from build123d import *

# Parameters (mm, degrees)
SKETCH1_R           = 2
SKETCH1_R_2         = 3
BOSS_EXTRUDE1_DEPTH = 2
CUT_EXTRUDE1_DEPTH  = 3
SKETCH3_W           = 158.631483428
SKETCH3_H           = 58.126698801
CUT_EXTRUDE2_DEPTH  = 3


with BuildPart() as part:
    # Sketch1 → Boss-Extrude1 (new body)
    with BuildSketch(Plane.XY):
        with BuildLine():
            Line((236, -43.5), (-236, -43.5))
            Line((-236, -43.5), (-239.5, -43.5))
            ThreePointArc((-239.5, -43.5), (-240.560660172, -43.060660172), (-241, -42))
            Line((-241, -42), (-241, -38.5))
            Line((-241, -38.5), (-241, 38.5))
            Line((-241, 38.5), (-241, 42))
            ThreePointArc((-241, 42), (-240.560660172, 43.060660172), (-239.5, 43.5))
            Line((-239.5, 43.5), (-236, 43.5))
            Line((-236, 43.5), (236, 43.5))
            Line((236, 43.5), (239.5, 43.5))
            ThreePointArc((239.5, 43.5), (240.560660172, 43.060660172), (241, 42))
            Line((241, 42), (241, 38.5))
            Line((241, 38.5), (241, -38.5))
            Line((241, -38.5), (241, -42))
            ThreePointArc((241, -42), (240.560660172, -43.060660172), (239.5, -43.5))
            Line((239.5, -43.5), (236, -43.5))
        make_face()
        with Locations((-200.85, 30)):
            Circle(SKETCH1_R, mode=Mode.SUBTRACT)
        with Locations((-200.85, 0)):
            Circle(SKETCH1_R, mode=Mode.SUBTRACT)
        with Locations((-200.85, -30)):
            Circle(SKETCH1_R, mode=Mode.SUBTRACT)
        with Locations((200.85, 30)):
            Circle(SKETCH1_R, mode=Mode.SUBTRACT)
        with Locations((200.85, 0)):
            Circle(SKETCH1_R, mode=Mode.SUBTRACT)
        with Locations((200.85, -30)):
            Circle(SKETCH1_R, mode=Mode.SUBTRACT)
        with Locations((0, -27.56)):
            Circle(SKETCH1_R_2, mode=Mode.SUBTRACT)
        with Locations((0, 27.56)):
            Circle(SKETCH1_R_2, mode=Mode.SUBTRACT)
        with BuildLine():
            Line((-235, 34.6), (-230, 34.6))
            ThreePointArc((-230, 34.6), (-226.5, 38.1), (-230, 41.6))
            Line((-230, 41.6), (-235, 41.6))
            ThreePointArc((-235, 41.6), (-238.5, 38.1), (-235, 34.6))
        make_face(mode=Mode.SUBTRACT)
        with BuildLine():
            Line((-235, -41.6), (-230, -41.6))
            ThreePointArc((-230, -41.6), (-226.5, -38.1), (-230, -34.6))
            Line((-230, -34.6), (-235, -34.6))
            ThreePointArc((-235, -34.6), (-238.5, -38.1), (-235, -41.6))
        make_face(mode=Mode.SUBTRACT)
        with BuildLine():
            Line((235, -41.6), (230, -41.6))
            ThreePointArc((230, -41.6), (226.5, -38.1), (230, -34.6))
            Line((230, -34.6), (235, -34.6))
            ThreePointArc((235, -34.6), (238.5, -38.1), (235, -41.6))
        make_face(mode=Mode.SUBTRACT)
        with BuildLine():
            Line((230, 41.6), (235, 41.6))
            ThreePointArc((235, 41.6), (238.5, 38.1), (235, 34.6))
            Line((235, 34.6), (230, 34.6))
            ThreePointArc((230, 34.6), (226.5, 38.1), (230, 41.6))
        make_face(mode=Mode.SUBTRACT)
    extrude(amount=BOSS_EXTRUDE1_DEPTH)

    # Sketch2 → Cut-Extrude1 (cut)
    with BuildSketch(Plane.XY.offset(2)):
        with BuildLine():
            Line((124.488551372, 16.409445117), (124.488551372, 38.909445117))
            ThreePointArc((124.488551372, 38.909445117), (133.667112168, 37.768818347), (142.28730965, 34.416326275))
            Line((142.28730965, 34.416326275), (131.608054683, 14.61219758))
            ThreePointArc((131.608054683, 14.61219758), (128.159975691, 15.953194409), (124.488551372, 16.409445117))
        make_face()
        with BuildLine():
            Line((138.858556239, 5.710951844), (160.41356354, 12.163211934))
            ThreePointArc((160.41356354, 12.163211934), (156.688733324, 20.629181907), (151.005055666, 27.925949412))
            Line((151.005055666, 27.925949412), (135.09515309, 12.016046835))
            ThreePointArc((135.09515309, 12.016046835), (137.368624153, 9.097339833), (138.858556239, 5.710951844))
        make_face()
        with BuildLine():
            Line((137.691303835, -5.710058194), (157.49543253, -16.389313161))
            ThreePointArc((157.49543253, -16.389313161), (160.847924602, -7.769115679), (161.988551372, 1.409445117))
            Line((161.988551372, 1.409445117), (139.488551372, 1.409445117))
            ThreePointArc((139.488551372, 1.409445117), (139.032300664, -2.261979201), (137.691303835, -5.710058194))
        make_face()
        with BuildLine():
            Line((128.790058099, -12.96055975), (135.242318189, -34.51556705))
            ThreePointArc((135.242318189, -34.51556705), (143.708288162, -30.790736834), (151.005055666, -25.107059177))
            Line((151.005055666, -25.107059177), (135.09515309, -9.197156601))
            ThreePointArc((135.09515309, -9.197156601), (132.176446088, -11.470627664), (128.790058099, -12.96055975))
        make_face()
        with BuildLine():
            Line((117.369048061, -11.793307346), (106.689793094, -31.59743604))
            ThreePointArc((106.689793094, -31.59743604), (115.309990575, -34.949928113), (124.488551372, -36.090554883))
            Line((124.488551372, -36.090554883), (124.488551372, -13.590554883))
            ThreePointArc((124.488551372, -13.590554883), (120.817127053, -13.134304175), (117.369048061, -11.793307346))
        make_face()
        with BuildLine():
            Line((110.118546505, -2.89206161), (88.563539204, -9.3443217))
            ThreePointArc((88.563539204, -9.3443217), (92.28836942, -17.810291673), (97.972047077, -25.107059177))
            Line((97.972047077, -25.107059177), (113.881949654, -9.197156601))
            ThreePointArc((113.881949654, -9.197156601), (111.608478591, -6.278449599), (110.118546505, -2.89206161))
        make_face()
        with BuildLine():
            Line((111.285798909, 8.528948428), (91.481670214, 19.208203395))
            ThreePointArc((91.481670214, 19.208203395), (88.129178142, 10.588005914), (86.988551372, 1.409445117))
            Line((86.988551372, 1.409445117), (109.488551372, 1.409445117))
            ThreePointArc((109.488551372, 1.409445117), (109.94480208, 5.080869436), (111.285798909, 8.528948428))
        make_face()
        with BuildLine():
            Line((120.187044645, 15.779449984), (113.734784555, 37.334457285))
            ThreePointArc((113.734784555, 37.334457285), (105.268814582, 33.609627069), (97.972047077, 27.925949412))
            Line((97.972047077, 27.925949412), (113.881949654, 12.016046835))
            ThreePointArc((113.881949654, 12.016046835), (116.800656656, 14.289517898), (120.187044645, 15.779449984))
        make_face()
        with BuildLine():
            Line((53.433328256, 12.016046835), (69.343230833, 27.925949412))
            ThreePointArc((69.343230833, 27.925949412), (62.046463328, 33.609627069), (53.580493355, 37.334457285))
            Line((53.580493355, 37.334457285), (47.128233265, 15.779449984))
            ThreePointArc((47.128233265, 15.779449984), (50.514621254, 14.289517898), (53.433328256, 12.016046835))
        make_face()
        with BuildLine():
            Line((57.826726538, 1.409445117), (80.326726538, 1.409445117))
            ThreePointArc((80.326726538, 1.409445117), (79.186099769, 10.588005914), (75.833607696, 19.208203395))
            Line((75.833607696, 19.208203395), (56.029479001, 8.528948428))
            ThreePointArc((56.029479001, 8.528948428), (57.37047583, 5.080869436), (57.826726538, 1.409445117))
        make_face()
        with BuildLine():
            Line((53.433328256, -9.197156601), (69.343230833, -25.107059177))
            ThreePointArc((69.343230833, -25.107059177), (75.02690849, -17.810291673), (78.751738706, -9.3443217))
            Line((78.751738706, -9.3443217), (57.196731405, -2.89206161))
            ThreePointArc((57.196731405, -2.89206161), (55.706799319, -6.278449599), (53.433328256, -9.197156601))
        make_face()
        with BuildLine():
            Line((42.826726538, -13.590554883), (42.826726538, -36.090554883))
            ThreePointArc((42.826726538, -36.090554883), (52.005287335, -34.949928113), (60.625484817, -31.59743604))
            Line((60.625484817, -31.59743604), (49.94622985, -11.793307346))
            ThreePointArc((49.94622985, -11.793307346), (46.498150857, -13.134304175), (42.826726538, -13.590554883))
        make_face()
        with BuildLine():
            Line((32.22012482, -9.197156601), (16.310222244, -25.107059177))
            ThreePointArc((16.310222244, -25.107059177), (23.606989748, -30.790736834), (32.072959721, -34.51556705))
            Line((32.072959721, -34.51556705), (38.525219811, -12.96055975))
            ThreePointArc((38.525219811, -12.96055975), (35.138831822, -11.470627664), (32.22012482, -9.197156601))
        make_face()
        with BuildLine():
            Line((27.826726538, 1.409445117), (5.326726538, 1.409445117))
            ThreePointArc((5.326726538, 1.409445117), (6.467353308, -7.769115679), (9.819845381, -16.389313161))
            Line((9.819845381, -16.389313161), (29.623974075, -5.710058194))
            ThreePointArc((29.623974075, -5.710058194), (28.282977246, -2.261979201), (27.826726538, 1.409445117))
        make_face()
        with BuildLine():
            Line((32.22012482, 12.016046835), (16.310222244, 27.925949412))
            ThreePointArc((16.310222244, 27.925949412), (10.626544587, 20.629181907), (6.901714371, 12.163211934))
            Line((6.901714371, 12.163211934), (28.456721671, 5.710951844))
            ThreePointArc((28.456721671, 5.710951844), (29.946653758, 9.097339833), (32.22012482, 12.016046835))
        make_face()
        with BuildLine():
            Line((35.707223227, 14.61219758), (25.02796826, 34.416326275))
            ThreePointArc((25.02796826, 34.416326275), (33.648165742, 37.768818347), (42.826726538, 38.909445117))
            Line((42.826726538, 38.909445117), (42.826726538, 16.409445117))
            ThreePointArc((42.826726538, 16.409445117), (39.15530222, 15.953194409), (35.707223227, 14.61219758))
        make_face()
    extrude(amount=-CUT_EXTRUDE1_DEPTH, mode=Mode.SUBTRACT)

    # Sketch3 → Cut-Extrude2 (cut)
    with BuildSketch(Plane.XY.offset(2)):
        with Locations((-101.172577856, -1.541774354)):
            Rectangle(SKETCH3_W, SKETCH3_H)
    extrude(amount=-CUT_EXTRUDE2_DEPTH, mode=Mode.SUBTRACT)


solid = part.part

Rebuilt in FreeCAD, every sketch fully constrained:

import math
import FreeCAD as App
import Part
import Sketcher


def add_polygon(sketch, points):
    """Adds a closed chain of lines whose ends are joined by coincident constraints."""
    first, n = sketch.GeometryCount, len(points)
    for a, b in zip(points, points[1:] + points[:1]):
        sketch.addGeometry(Part.LineSegment(App.Vector(*a, 0), App.Vector(*b, 0)), False)
    for i in range(n):
        sketch.addConstraint(Sketcher.Constraint("Coincident", first + i, 2, first + (i + 1) % n, 1))

doc = App.newDocument("Part")
params = doc.addObject("Spreadsheet::Sheet", "Params")
for row, (alias, value) in enumerate([
    ("sketch1_diameter", "4 mm"),
    ("sketch1_diameter2", "6 mm"),
    ("sketch1_radius", "1.5 mm"),
    ("sketch1_radius2", "3.5 mm"),
    ("sketch1_width", "479 mm"),
    ("pad1_length", "2 mm"),
    ("sketch2_radius", "15 mm"),
    ("sketch2_radius2", "37.5 mm"),
    ("pocket1_length", "3 mm"),
    ("pocket2_length", "3 mm"),
], start=1):
    params.set(f"A{row}", alias)
    params.set(f"B{row}", "=" + value)
    params.setAlias(f"B{row}", alias)

body = doc.addObject("PartDesign::Body", "Body")

# Sketch on XY plane
sketch1 = doc.addObject("Sketcher::SketchObject", "Sketch")
body.addObject(sketch1)
sketch1.AttachmentSupport = (doc.XY_Plane, [""])
sketch1.MapMode = "FlatFace"
sketch1.addGeometry(Part.ArcOfCircle(Part.Circle(App.Vector(-239.5, -42, 0), App.Vector(0, 0, 1), 1.5), math.radians(180), math.radians(270)), False)
sketch1.addGeometry(Part.LineSegment(App.Vector(-239.5, -43.5, 0), App.Vector(239.5, -43.5, 0)), False)
sketch1.addGeometry(Part.ArcOfCircle(Part.Circle(App.Vector(239.5, -42, 0), App.Vector(0, 0, 1), 1.5), math.radians(-90), math.radians(0)), False)
sketch1.addGeometry(Part.LineSegment(App.Vector(241, -42, 0), App.Vector(241, 42, 0)), False)
sketch1.addGeometry(Part.ArcOfCircle(Part.Circle(App.Vector(239.5, 42, 0), App.Vector(0, 0, 1), 1.5), math.radians(0), math.radians(90)), False)
sketch1.addGeometry(Part.LineSegment(App.Vector(239.5, 43.5, 0), App.Vector(-239.5, 43.5, 0)), False)
sketch1.addGeometry(Part.ArcOfCircle(Part.Circle(App.Vector(-239.5, 42, 0), App.Vector(0, 0, 1), 1.5), math.radians(90), math.radians(180)), False)
sketch1.addGeometry(Part.LineSegment(App.Vector(-241, 42, 0), App.Vector(-241, -42, 0)), False)
sketch1.addGeometry(Part.LineSegment(App.Vector(235, -41.6, 0), App.Vector(230, -41.6, 0)), False)
sketch1.addGeometry(Part.ArcOfCircle(Part.Circle(App.Vector(230, -38.1, 0), App.Vector(0, 0, 1), 3.5), math.radians(90), math.radians(270)), False)
sketch1.addGeometry(Part.LineSegment(App.Vector(230, -34.6, 0), App.Vector(235, -34.6, 0)), False)
sketch1.addGeometry(Part.ArcOfCircle(Part.Circle(App.Vector(235, -38.1, 0), App.Vector(0, 0, 1), 3.5), math.radians(-90), math.radians(90)), False)
sketch1.addGeometry(Part.Circle(App.Vector(200.8, -30, 0), App.Vector(0, 0, 1), 2), False)
sketch1.addGeometry(Part.Circle(App.Vector(0, -27.6, 0), App.Vector(0, 0, 1), 3), False)
sketch1.addGeometry(Part.ArcOfCircle(Part.Circle(App.Vector(-235, -38.1, 0), App.Vector(0, 0, 1), 3.5), math.radians(90), math.radians(270)), False)
sketch1.addGeometry(Part.LineSegment(App.Vector(-235, -34.6, 0), App.Vector(-230, -34.6, 0)), False)
sketch1.addGeometry(Part.ArcOfCircle(Part.Circle(App.Vector(-230, -38.1, 0), App.Vector(0, 0, 1), 3.5), math.radians(-90), math.radians(90)), False)
sketch1.addGeometry(Part.LineSegment(App.Vector(-230, -41.6, 0), App.Vector(-235, -41.6, 0)), False)
sketch1.addGeometry(Part.Circle(App.Vector(-200.8, -30, 0), App.Vector(0, 0, 1), 2), False)
sketch1.addGeometry(Part.Circle(App.Vector(200.8, 0, 0), App.Vector(0, 0, 1), 2), False)
sketch1.addGeometry(Part.Circle(App.Vector(200.8, 30, 0), App.Vector(0, 0, 1), 2), False)
sketch1.addGeometry(Part.LineSegment(App.Vector(230, 41.6, 0), App.Vector(235, 41.6, 0)), False)
sketch1.addGeometry(Part.ArcOfCircle(Part.Circle(App.Vector(235, 38.1, 0), App.Vector(0, 0, 1), 3.5), math.radians(-90), math.radians(90)), False)
sketch1.addGeometry(Part.LineSegment(App.Vector(235, 34.6, 0), App.Vector(230, 34.6, 0)), False)
sketch1.addGeometry(Part.ArcOfCircle(Part.Circle(App.Vector(230, 38.1, 0), App.Vector(0, 0, 1), 3.5), math.radians(90), math.radians(270)), False)
sketch1.addGeometry(Part.Circle(App.Vector(-200.8, 0, 0), App.Vector(0, 0, 1), 2), False)
sketch1.addGeometry(Part.Circle(App.Vector(0, 27.6, 0), App.Vector(0, 0, 1), 3), False)
sketch1.addGeometry(Part.Circle(App.Vector(-200.8, 30, 0), App.Vector(0, 0, 1), 2), False)
sketch1.addGeometry(Part.ArcOfCircle(Part.Circle(App.Vector(-235, 38.1, 0), App.Vector(0, 0, 1), 3.5), math.radians(90), math.radians(270)), False)
sketch1.addGeometry(Part.LineSegment(App.Vector(-235, 41.6, 0), App.Vector(-230, 41.6, 0)), False)
sketch1.addGeometry(Part.ArcOfCircle(Part.Circle(App.Vector(-230, 38.1, 0), App.Vector(0, 0, 1), 3.5), math.radians(-90), math.radians(90)), False)
sketch1.addGeometry(Part.LineSegment(App.Vector(-230, 34.6, 0), App.Vector(-235, 34.6, 0)), False)
sketch1.addConstraint(Sketcher.Constraint("Tangent", 0, 2, 1, 1))
sketch1.addConstraint(Sketcher.Constraint("Tangent", 1, 2, 2, 1))
sketch1.addConstraint(Sketcher.Constraint("Tangent", 2, 2, 3, 1))
sketch1.addConstraint(Sketcher.Constraint("Tangent", 3, 2, 4, 1))
sketch1.addConstraint(Sketcher.Constraint("Tangent", 4, 2, 5, 1))
sketch1.addConstraint(Sketcher.Constraint("Tangent", 5, 2, 6, 1))
sketch1.addConstraint(Sketcher.Constraint("Tangent", 6, 2, 7, 1))
sketch1.addConstraint(Sketcher.Constraint("Tangent", 7, 2, 0, 1))
sketch1.addConstraint(Sketcher.Constraint("Tangent", 8, 2, 9, 2))
sketch1.addConstraint(Sketcher.Constraint("Tangent", 9, 1, 10, 1))
sketch1.addConstraint(Sketcher.Constraint("Tangent", 10, 2, 11, 2))
sketch1.addConstraint(Sketcher.Constraint("Tangent", 11, 1, 8, 1))
sketch1.addConstraint(Sketcher.Constraint("Tangent", 14, 1, 15, 1))
sketch1.addConstraint(Sketcher.Constraint("Tangent", 15, 2, 16, 2))
sketch1.addConstraint(Sketcher.Constraint("Tangent", 16, 1, 17, 1))
sketch1.addConstraint(Sketcher.Constraint("Tangent", 17, 2, 14, 2))
sketch1.addConstraint(Sketcher.Constraint("Tangent", 21, 2, 22, 2))
sketch1.addConstraint(Sketcher.Constraint("Tangent", 22, 1, 23, 1))
sketch1.addConstraint(Sketcher.Constraint("Tangent", 23, 2, 24, 2))
sketch1.addConstraint(Sketcher.Constraint("Tangent", 24, 1, 21, 1))
sketch1.addConstraint(Sketcher.Constraint("Tangent", 28, 1, 29, 1))
sketch1.addConstraint(Sketcher.Constraint("Tangent", 29, 2, 30, 2))
sketch1.addConstraint(Sketcher.Constraint("Tangent", 30, 1, 31, 1))
sketch1.addConstraint(Sketcher.Constraint("Tangent", 31, 2, 28, 2))
sketch1.addConstraint(Sketcher.Constraint("Horizontal", 1))
sketch1.addConstraint(Sketcher.Constraint("Vertical", 3))
sketch1.addConstraint(Sketcher.Constraint("Horizontal", 5))
sketch1.addConstraint(Sketcher.Constraint("Vertical", 7))
sketch1.addConstraint(Sketcher.Constraint("Horizontal", 8))
sketch1.addConstraint(Sketcher.Constraint("Horizontal", 10))
sketch1.addConstraint(Sketcher.Constraint("Horizontal", 15))
sketch1.addConstraint(Sketcher.Constraint("Horizontal", 17))
sketch1.addConstraint(Sketcher.Constraint("Horizontal", 21))
sketch1.addConstraint(Sketcher.Constraint("Horizontal", 23))
sketch1.addConstraint(Sketcher.Constraint("Horizontal", 29))
sketch1.addConstraint(Sketcher.Constraint("Horizontal", 31))
sketch1.addConstraint(Sketcher.Constraint("Equal", 0, 2))
sketch1.addConstraint(Sketcher.Constraint("Equal", 2, 4))
sketch1.addConstraint(Sketcher.Constraint("Equal", 4, 6))
sketch1.addConstraint(Sketcher.Constraint("Equal", 11, 14))
sketch1.addConstraint(Sketcher.Constraint("Equal", 12, 18))
sketch1.addConstraint(Sketcher.Constraint("Equal", 18, 19))
sketch1.addConstraint(Sketcher.Constraint("Equal", 19, 20))
sketch1.addConstraint(Sketcher.Constraint("Equal", 16, 22))
sketch1.addConstraint(Sketcher.Constraint("Equal", 20, 25))
sketch1.addConstraint(Sketcher.Constraint("Equal", 13, 26))
sketch1.addConstraint(Sketcher.Constraint("Equal", 25, 27))
sketch1.addConstraint(Sketcher.Constraint("Equal", 24, 28))
sketch1.addConstraint(Sketcher.Constraint("Symmetric", 0, 3, 4, 3, -1, 1))
sketch1.addConstraint(Sketcher.Constraint("Symmetric", 18, 3, 20, 3, -1, 1))
sketch1.addConstraint(Sketcher.Constraint("Symmetric", 14, 3, 22, 3, -1, 1))
sketch1.addConstraint(Sketcher.Constraint("Symmetric", 19, 3, 25, 3, -1, 1))
sketch1.addConstraint(Sketcher.Constraint("Symmetric", 13, 3, 26, 3, -1, 1))
sketch1.addConstraint(Sketcher.Constraint("Symmetric", 12, 3, 27, 3, -1, 1))
sketch1.addConstraint(Sketcher.Constraint("Symmetric", 11, 3, 28, 3, -1, 1))
sketch1.addConstraint(Sketcher.Constraint("Symmetric", 11, 3, 14, 3, -2))
sketch1.addConstraint(Sketcher.Constraint("Symmetric", 12, 3, 18, 3, -2))
sketch1.addConstraint(Sketcher.Constraint("PointOnObject", 13, 3, -2))
sketch1.addConstraint(Sketcher.Constraint("PointOnObject", 19, 3, -1))
sketch1.addConstraint(Sketcher.Constraint("Vertical", 12, 3, 19, 3))
sketch1.addConstraint(Sketcher.Constraint("Vertical", 9, 3, 24, 3))
sketch1.addConstraint(Sketcher.Constraint("Vertical", 16, 3, 30, 3))
sketch1.addConstraint(Sketcher.Constraint("Equal", 10, 15))
sketch1.addConstraint(Sketcher.Constraint("Diameter", 12, 4.0))
sketch1.addConstraint(Sketcher.Constraint("Diameter", 13, 6.0))
sketch1.addConstraint(Sketcher.Constraint("Radius", 0, 1.5))
sketch1.addConstraint(Sketcher.Constraint("Radius", 9, 3.5))
sketch1.addConstraint(Sketcher.Constraint("DistanceX", 1, 1, 1, 2, 479.0))
sketch1.addConstraint(Sketcher.Constraint("DistanceX", 8, 2, 8, 1, 5.0))
sketch1.addConstraint(Sketcher.Constraint("DistanceY", 3, 1, 3, 2, 84.0))
sketch1.addConstraint(Sketcher.Constraint("DistanceX", -1, 1, 9, 3, 230.0))
sketch1.addConstraint(Sketcher.Constraint("DistanceY", 12, 3, -1, 1, 30.0))
sketch1.addConstraint(Sketcher.Constraint("DistanceY", 9, 3, -1, 1, 38.1))
sketch1.addConstraint(Sketcher.Constraint("DistanceX", -1, 1, 12, 3, 200.85))
sketch1.addConstraint(Sketcher.Constraint("DistanceY", 13, 3, -1, 1, 27.56))
sketch1.setExpression("Constraints[63]", "Params.sketch1_diameter")
sketch1.setExpression("Constraints[64]", "Params.sketch1_diameter2")
sketch1.setExpression("Constraints[65]", "Params.sketch1_radius")
sketch1.setExpression("Constraints[66]", "Params.sketch1_radius2")
sketch1.setExpression("Constraints[67]", "Params.sketch1_width")
pad1 = doc.addObject("PartDesign::Pad", "Pad")
body.addObject(pad1)
pad1.Profile = sketch1
pad1.setExpression("Length", "Params.pad1_length")

# Sketch on XY plane
sketch2 = doc.addObject("Sketcher::SketchObject", "Sketch001")
body.addObject(sketch2)
sketch2.AttachmentSupport = (doc.XY_Plane, [""])
sketch2.MapMode = "FlatFace"
sketch2.AttachmentOffset = App.Placement(App.Vector(0, 0, 2), App.Rotation())
sketch2.addGeometry(Part.LineSegment(App.Vector(124, 39, 0), App.Vector(124, 16, 0)), False)
sketch2.addGeometry(Part.ArcOfCircle(Part.Circle(App.Vector(124, 1, 0), App.Vector(0, 0, 1), 15), math.radians(62), math.radians(90)), False)
sketch2.addGeometry(Part.LineSegment(App.Vector(132, 15, 0), App.Vector(142, 34, 0)), False)
sketch2.addGeometry(Part.ArcOfCircle(Part.Circle(App.Vector(124, 1, 0), App.Vector(0, 0, 1), 38), math.radians(62), math.radians(90)), False)
sketch2.addGeometry(Part.LineSegment(App.Vector(139, 6, 0), App.Vector(160, 12, 0)), False)
sketch2.addGeometry(Part.ArcOfCircle(Part.Circle(App.Vector(124, 1, 0), App.Vector(0, 0, 1), 37), math.radians(17), math.radians(45)), False)
sketch2.addGeometry(Part.LineSegment(App.Vector(151, 28, 0), App.Vector(135, 12, 0)), False)
sketch2.addGeometry(Part.ArcOfCircle(Part.Circle(App.Vector(124, 1, 0), App.Vector(0, 0, 1), 15), math.radians(17), math.radians(45)), False)
sketch2.addGeometry(Part.LineSegment(App.Vector(138, -6, 0), App.Vector(157, -16, 0)), False)
sketch2.addGeometry(Part.ArcOfCircle(Part.Circle(App.Vector(124, 1, 0), App.Vector(0, 0, 1), 38), math.radians(-28), math.radians(0)), False)
sketch2.addGeometry(Part.LineSegment(App.Vector(162, 1, 0), App.Vector(139, 1, 0)), False)
sketch2.addGeometry(Part.ArcOfCircle(Part.Circle(App.Vector(124, 1, 0), App.Vector(0, 0, 1), 15), math.radians(-28), math.radians(0)), False)
sketch2.addGeometry(Part.LineSegment(App.Vector(129, -13, 0), App.Vector(135, -35, 0)), False)
sketch2.addGeometry(Part.ArcOfCircle(Part.Circle(App.Vector(124, 1, 0), App.Vector(0, 0, 1), 37), math.radians(-73), math.radians(-45)), False)
sketch2.addGeometry(Part.LineSegment(App.Vector(151, -25, 0), App.Vector(135, -9, 0)), False)
sketch2.addGeometry(Part.ArcOfCircle(Part.Circle(App.Vector(124, 1, 0), App.Vector(0, 0, 1), 15), math.radians(-73), math.radians(-45)), False)
sketch2.addGeometry(Part.LineSegment(App.Vector(117, -12, 0), App.Vector(107, -32, 0)), False)
sketch2.addGeometry(Part.ArcOfCircle(Part.Circle(App.Vector(124, 1, 0), App.Vector(0, 0, 1), 37), math.radians(-118), math.radians(-90)), False)
sketch2.addGeometry(Part.LineSegment(App.Vector(124, -36, 0), App.Vector(124, -14, 0)), False)
sketch2.addGeometry(Part.ArcOfCircle(Part.Circle(App.Vector(124, 1, 0), App.Vector(0, 0, 1), 15), math.radians(-118), math.radians(-90)), False)
sketch2.addGeometry(Part.LineSegment(App.Vector(110, -3, 0), App.Vector(89, -9, 0)), False)
sketch2.addGeometry(Part.ArcOfCircle(Part.Circle(App.Vector(124, 1, 0), App.Vector(0, 0, 1), 37), math.radians(-163), math.radians(-135)), False)
sketch2.addGeometry(Part.LineSegment(App.Vector(98, -25, 0), App.Vector(114, -9, 0)), False)
sketch2.addGeometry(Part.ArcOfCircle(Part.Circle(App.Vector(124, 1, 0), App.Vector(0, 0, 1), 15), math.radians(-163), math.radians(-135)), False)
sketch2.addGeometry(Part.LineSegment(App.Vector(111, 9, 0), App.Vector(91, 19, 0)), False)
sketch2.addGeometry(Part.ArcOfCircle(Part.Circle(App.Vector(124, 1, 0), App.Vector(0, 0, 1), 38), math.radians(152), math.radians(180)), False)
sketch2.addGeometry(Part.LineSegment(App.Vector(87, 1, 0), App.Vector(109, 1, 0)), False)
sketch2.addGeometry(Part.ArcOfCircle(Part.Circle(App.Vector(124, 1, 0), App.Vector(0, 0, 1), 15), math.radians(152), math.radians(180)), False)
sketch2.addGeometry(Part.LineSegment(App.Vector(120, 16, 0), App.Vector(114, 37, 0)), False)
sketch2.addGeometry(Part.ArcOfCircle(Part.Circle(App.Vector(124, 1, 0), App.Vector(0, 0, 1), 38), math.radians(107), math.radians(135)), False)
sketch2.addGeometry(Part.LineSegment(App.Vector(98, 28, 0), App.Vector(114, 12, 0)), False)
sketch2.addGeometry(Part.ArcOfCircle(Part.Circle(App.Vector(124, 1, 0), App.Vector(0, 0, 1), 15), math.radians(107), math.radians(135)), False)
sketch2.addGeometry(Part.LineSegment(App.Vector(53, 12, 0), App.Vector(69, 28, 0)), False)
sketch2.addGeometry(Part.ArcOfCircle(Part.Circle(App.Vector(43, 1, 0), App.Vector(0, 0, 1), 38), math.radians(45), math.radians(73)), False)
sketch2.addGeometry(Part.LineSegment(App.Vector(54, 37, 0), App.Vector(47, 16, 0)), False)
sketch2.addGeometry(Part.ArcOfCircle(Part.Circle(App.Vector(43, 1, 0), App.Vector(0, 0, 1), 15), math.radians(45), math.radians(73)), False)
sketch2.addGeometry(Part.LineSegment(App.Vector(58, 1, 0), App.Vector(80, 1, 0)), False)
sketch2.addGeometry(Part.ArcOfCircle(Part.Circle(App.Vector(43, 1, 0), App.Vector(0, 0, 1), 37), math.radians(0), math.radians(28)), False)
sketch2.addGeometry(Part.LineSegment(App.Vector(76, 19, 0), App.Vector(56, 9, 0)), False)
sketch2.addGeometry(Part.ArcOfCircle(Part.Circle(App.Vector(43, 1, 0), App.Vector(0, 0, 1), 15), math.radians(0), math.radians(28)), False)
sketch2.addGeometry(Part.LineSegment(App.Vector(53, -9, 0), App.Vector(69, -25, 0)), False)
sketch2.addGeometry(Part.ArcOfCircle(Part.Circle(App.Vector(43, 1, 0), App.Vector(0, 0, 1), 37), math.radians(-45), math.radians(-17)), False)
sketch2.addGeometry(Part.LineSegment(App.Vector(79, -9, 0), App.Vector(57, -3, 0)), False)
sketch2.addGeometry(Part.ArcOfCircle(Part.Circle(App.Vector(43, 1, 0), App.Vector(0, 0, 1), 15), math.radians(-45), math.radians(-17)), False)
sketch2.addGeometry(Part.LineSegment(App.Vector(43, -14, 0), App.Vector(43, -36, 0)), False)
sketch2.addGeometry(Part.ArcOfCircle(Part.Circle(App.Vector(43, 1, 0), App.Vector(0, 0, 1), 38), math.radians(-90), math.radians(-62)), False)
sketch2.addGeometry(Part.LineSegment(App.Vector(61, -32, 0), App.Vector(50, -12, 0)), False)
sketch2.addGeometry(Part.ArcOfCircle(Part.Circle(App.Vector(43, 1, 0), App.Vector(0, 0, 1), 15), math.radians(-90), math.radians(-62)), False)
sketch2.addGeometry(Part.LineSegment(App.Vector(32, -9, 0), App.Vector(16, -25, 0)), False)
sketch2.addGeometry(Part.ArcOfCircle(Part.Circle(App.Vector(43, 1, 0), App.Vector(0, 0, 1), 37), math.radians(-135), math.radians(-107)), False)
sketch2.addGeometry(Part.LineSegment(App.Vector(32, -35, 0), App.Vector(39, -13, 0)), False)
sketch2.addGeometry(Part.ArcOfCircle(Part.Circle(App.Vector(43, 1, 0), App.Vector(0, 0, 1), 15), math.radians(-135), math.radians(-107)), False)
sketch2.addGeometry(Part.LineSegment(App.Vector(28, 1, 0), App.Vector(5, 1, 0)), False)
sketch2.addGeometry(Part.ArcOfCircle(Part.Circle(App.Vector(43, 1, 0), App.Vector(0, 0, 1), 38), math.radians(-180), math.radians(-152)), False)
sketch2.addGeometry(Part.LineSegment(App.Vector(10, -16, 0), App.Vector(30, -6, 0)), False)
sketch2.addGeometry(Part.ArcOfCircle(Part.Circle(App.Vector(43, 1, 0), App.Vector(0, 0, 1), 15), math.radians(-180), math.radians(-152)), False)
sketch2.addGeometry(Part.LineSegment(App.Vector(32, 12, 0), App.Vector(16, 28, 0)), False)
sketch2.addGeometry(Part.ArcOfCircle(Part.Circle(App.Vector(43, 1, 0), App.Vector(0, 0, 1), 38), math.radians(135), math.radians(163)), False)
sketch2.addGeometry(Part.LineSegment(App.Vector(7, 12, 0), App.Vector(28, 6, 0)), False)
sketch2.addGeometry(Part.ArcOfCircle(Part.Circle(App.Vector(43, 1, 0), App.Vector(0, 0, 1), 15), math.radians(135), math.radians(163)), False)
sketch2.addGeometry(Part.LineSegment(App.Vector(25, 34, 0), App.Vector(36, 15, 0)), False)
sketch2.addGeometry(Part.ArcOfCircle(Part.Circle(App.Vector(43, 1, 0), App.Vector(0, 0, 1), 15), math.radians(90), math.radians(118)), False)
sketch2.addGeometry(Part.LineSegment(App.Vector(43, 16, 0), App.Vector(43, 39, 0)), False)
sketch2.addGeometry(Part.ArcOfCircle(Part.Circle(App.Vector(43, 1, 0), App.Vector(0, 0, 1), 38), math.radians(90), math.radians(118)), False)
sketch2.addConstraint(Sketcher.Constraint("Coincident", 0, 2, 1, 2))
sketch2.addConstraint(Sketcher.Constraint("Coincident", 1, 1, 2, 1))
sketch2.addConstraint(Sketcher.Constraint("Coincident", 2, 2, 3, 1))
sketch2.addConstraint(Sketcher.Constraint("Coincident", 3, 2, 0, 1))
sketch2.addConstraint(Sketcher.Constraint("Coincident", 4, 2, 5, 1))
sketch2.addConstraint(Sketcher.Constraint("Coincident", 5, 2, 6, 1))
sketch2.addConstraint(Sketcher.Constraint("Coincident", 6, 2, 7, 2))
sketch2.addConstraint(Sketcher.Constraint("Coincident", 7, 1, 4, 1))
sketch2.addConstraint(Sketcher.Constraint("Coincident", 8, 2, 9, 1))
sketch2.addConstraint(Sketcher.Constraint("Coincident", 9, 2, 10, 1))
sketch2.addConstraint(Sketcher.Constraint("Coincident", 10, 2, 11, 2))
sketch2.addConstraint(Sketcher.Constraint("Coincident", 11, 1, 8, 1))
sketch2.addConstraint(Sketcher.Constraint("Coincident", 12, 2, 13, 1))
sketch2.addConstraint(Sketcher.Constraint("Coincident", 13, 2, 14, 1))
sketch2.addConstraint(Sketcher.Constraint("Coincident", 14, 2, 15, 2))
sketch2.addConstraint(Sketcher.Constraint("Coincident", 15, 1, 12, 1))
sketch2.addConstraint(Sketcher.Constraint("Coincident", 16, 2, 17, 1))
sketch2.addConstraint(Sketcher.Constraint("Coincident", 17, 2, 18, 1))
sketch2.addConstraint(Sketcher.Constraint("Coincident", 18, 2, 19, 2))
sketch2.addConstraint(Sketcher.Constraint("Coincident", 19, 1, 16, 1))
sketch2.addConstraint(Sketcher.Constraint("Coincident", 20, 2, 21, 1))
sketch2.addConstraint(Sketcher.Constraint("Coincident", 21, 2, 22, 1))
sketch2.addConstraint(Sketcher.Constraint("Coincident", 22, 2, 23, 2))
sketch2.addConstraint(Sketcher.Constraint("Coincident", 23, 1, 20, 1))
sketch2.addConstraint(Sketcher.Constraint("Coincident", 24, 2, 25, 1))
sketch2.addConstraint(Sketcher.Constraint("Coincident", 25, 2, 26, 1))
sketch2.addConstraint(Sketcher.Constraint("Coincident", 26, 2, 27, 2))
sketch2.addConstraint(Sketcher.Constraint("Coincident", 27, 1, 24, 1))
sketch2.addConstraint(Sketcher.Constraint("Coincident", 28, 2, 29, 1))
sketch2.addConstraint(Sketcher.Constraint("Coincident", 29, 2, 30, 1))
sketch2.addConstraint(Sketcher.Constraint("Coincident", 30, 2, 31, 2))
sketch2.addConstraint(Sketcher.Constraint("Coincident", 31, 1, 28, 1))
sketch2.addConstraint(Sketcher.Constraint("Coincident", 32, 2, 33, 1))
sketch2.addConstraint(Sketcher.Constraint("Coincident", 33, 2, 34, 1))
sketch2.addConstraint(Sketcher.Constraint("Coincident", 34, 2, 35, 2))
sketch2.addConstraint(Sketcher.Constraint("Coincident", 35, 1, 32, 1))
sketch2.addConstraint(Sketcher.Constraint("Coincident", 36, 2, 37, 1))
sketch2.addConstraint(Sketcher.Constraint("Coincident", 37, 2, 38, 1))
sketch2.addConstraint(Sketcher.Constraint("Coincident", 38, 2, 39, 2))
sketch2.addConstraint(Sketcher.Constraint("Coincident", 39, 1, 36, 1))
sketch2.addConstraint(Sketcher.Constraint("Coincident", 40, 2, 41, 1))
sketch2.addConstraint(Sketcher.Constraint("Coincident", 41, 2, 42, 1))
sketch2.addConstraint(Sketcher.Constraint("Coincident", 42, 2, 43, 2))
sketch2.addConstraint(Sketcher.Constraint("Coincident", 43, 1, 40, 1))
sketch2.addConstraint(Sketcher.Constraint("Coincident", 44, 2, 45, 1))
sketch2.addConstraint(Sketcher.Constraint("Coincident", 45, 2, 46, 1))
sketch2.addConstraint(Sketcher.Constraint("Coincident", 46, 2, 47, 2))
sketch2.addConstraint(Sketcher.Constraint("Coincident", 47, 1, 44, 1))
sketch2.addConstraint(Sketcher.Constraint("Coincident", 48, 2, 49, 1))
sketch2.addConstraint(Sketcher.Constraint("Coincident", 49, 2, 50, 1))
sketch2.addConstraint(Sketcher.Constraint("Coincident", 50, 2, 51, 2))
sketch2.addConstraint(Sketcher.Constraint("Coincident", 51, 1, 48, 1))
sketch2.addConstraint(Sketcher.Constraint("Coincident", 52, 2, 53, 1))
sketch2.addConstraint(Sketcher.Constraint("Coincident", 53, 2, 54, 1))
sketch2.addConstraint(Sketcher.Constraint("Coincident", 54, 2, 55, 2))
sketch2.addConstraint(Sketcher.Constraint("Coincident", 55, 1, 52, 1))
sketch2.addConstraint(Sketcher.Constraint("Coincident", 56, 2, 57, 1))
sketch2.addConstraint(Sketcher.Constraint("Coincident", 57, 2, 58, 1))
sketch2.addConstraint(Sketcher.Constraint("Coincident", 58, 2, 59, 2))
sketch2.addConstraint(Sketcher.Constraint("Coincident", 59, 1, 56, 1))
sketch2.addConstraint(Sketcher.Constraint("Coincident", 60, 2, 61, 2))
sketch2.addConstraint(Sketcher.Constraint("Coincident", 61, 1, 62, 1))
sketch2.addConstraint(Sketcher.Constraint("Coincident", 62, 2, 63, 1))
sketch2.addConstraint(Sketcher.Constraint("Coincident", 63, 2, 60, 1))
sketch2.addConstraint(Sketcher.Constraint("Vertical", 0))
sketch2.addConstraint(Sketcher.Constraint("Horizontal", 10))
sketch2.addConstraint(Sketcher.Constraint("Vertical", 18))
sketch2.addConstraint(Sketcher.Constraint("Horizontal", 26))
sketch2.addConstraint(Sketcher.Constraint("Horizontal", 36))
sketch2.addConstraint(Sketcher.Constraint("Vertical", 44))
sketch2.addConstraint(Sketcher.Constraint("Horizontal", 52))
sketch2.addConstraint(Sketcher.Constraint("Vertical", 62))
sketch2.addConstraint(Sketcher.Constraint("Coincident", 3, 3, 1, 3))
sketch2.addConstraint(Sketcher.Constraint("Coincident", 5, 3, 1, 3))
sketch2.addConstraint(Sketcher.Constraint("Coincident", 7, 3, 1, 3))
sketch2.addConstraint(Sketcher.Constraint("Coincident", 9, 3, 1, 3))
sketch2.addConstraint(Sketcher.Constraint("Coincident", 11, 3, 1, 3))
sketch2.addConstraint(Sketcher.Constraint("Coincident", 13, 3, 1, 3))
sketch2.addConstraint(Sketcher.Constraint("Coincident", 15, 3, 1, 3))
sketch2.addConstraint(Sketcher.Constraint("Coincident", 17, 3, 1, 3))
sketch2.addConstraint(Sketcher.Constraint("Coincident", 19, 3, 1, 3))
sketch2.addConstraint(Sketcher.Constraint("Coincident", 21, 3, 1, 3))
sketch2.addConstraint(Sketcher.Constraint("Coincident", 23, 3, 1, 3))
sketch2.addConstraint(Sketcher.Constraint("Coincident", 25, 3, 1, 3))
sketch2.addConstraint(Sketcher.Constraint("Coincident", 27, 3, 1, 3))
sketch2.addConstraint(Sketcher.Constraint("Coincident", 29, 3, 1, 3))
sketch2.addConstraint(Sketcher.Constraint("Coincident", 31, 3, 1, 3))
sketch2.addConstraint(Sketcher.Constraint("Coincident", 35, 3, 33, 3))
sketch2.addConstraint(Sketcher.Constraint("Coincident", 37, 3, 33, 3))
sketch2.addConstraint(Sketcher.Constraint("Coincident", 39, 3, 33, 3))
sketch2.addConstraint(Sketcher.Constraint("Coincident", 41, 3, 33, 3))
sketch2.addConstraint(Sketcher.Constraint("Coincident", 43, 3, 33, 3))
sketch2.addConstraint(Sketcher.Constraint("Coincident", 45, 3, 33, 3))
sketch2.addConstraint(Sketcher.Constraint("Coincident", 47, 3, 33, 3))
sketch2.addConstraint(Sketcher.Constraint("Coincident", 49, 3, 33, 3))
sketch2.addConstraint(Sketcher.Constraint("Coincident", 51, 3, 33, 3))
sketch2.addConstraint(Sketcher.Constraint("Coincident", 53, 3, 33, 3))
sketch2.addConstraint(Sketcher.Constraint("Coincident", 55, 3, 33, 3))
sketch2.addConstraint(Sketcher.Constraint("Coincident", 57, 3, 33, 3))
sketch2.addConstraint(Sketcher.Constraint("Coincident", 59, 3, 33, 3))
sketch2.addConstraint(Sketcher.Constraint("Coincident", 61, 3, 33, 3))
sketch2.addConstraint(Sketcher.Constraint("Coincident", 63, 3, 33, 3))
sketch2.addConstraint(Sketcher.Constraint("Equal", 3, 5))
sketch2.addConstraint(Sketcher.Constraint("Equal", 1, 7))
sketch2.addConstraint(Sketcher.Constraint("Equal", 5, 9))
sketch2.addConstraint(Sketcher.Constraint("Equal", 7, 11))
sketch2.addConstraint(Sketcher.Constraint("Equal", 9, 13))
sketch2.addConstraint(Sketcher.Constraint("Equal", 11, 15))
sketch2.addConstraint(Sketcher.Constraint("Equal", 13, 17))
sketch2.addConstraint(Sketcher.Constraint("Equal", 15, 19))
sketch2.addConstraint(Sketcher.Constraint("Equal", 17, 21))
sketch2.addConstraint(Sketcher.Constraint("Equal", 19, 23))
sketch2.addConstraint(Sketcher.Constraint("Equal", 21, 25))
sketch2.addConstraint(Sketcher.Constraint("Equal", 23, 27))
sketch2.addConstraint(Sketcher.Constraint("Equal", 25, 29))
sketch2.addConstraint(Sketcher.Constraint("Equal", 27, 31))
sketch2.addConstraint(Sketcher.Constraint("Equal", 29, 33))
sketch2.addConstraint(Sketcher.Constraint("Equal", 31, 35))
sketch2.addConstraint(Sketcher.Constraint("Equal", 33, 37))
sketch2.addConstraint(Sketcher.Constraint("Equal", 35, 39))
sketch2.addConstraint(Sketcher.Constraint("Equal", 37, 41))
sketch2.addConstraint(Sketcher.Constraint("Equal", 39, 43))
sketch2.addConstraint(Sketcher.Constraint("Equal", 41, 45))
sketch2.addConstraint(Sketcher.Constraint("Equal", 43, 47))
sketch2.addConstraint(Sketcher.Constraint("Equal", 45, 49))
sketch2.addConstraint(Sketcher.Constraint("Equal", 47, 51))
sketch2.addConstraint(Sketcher.Constraint("Equal", 49, 53))
sketch2.addConstraint(Sketcher.Constraint("Equal", 51, 55))
sketch2.addConstraint(Sketcher.Constraint("Equal", 53, 57))
sketch2.addConstraint(Sketcher.Constraint("Equal", 55, 59))
sketch2.addConstraint(Sketcher.Constraint("Equal", 59, 61))
sketch2.addConstraint(Sketcher.Constraint("Equal", 57, 63))
sketch2.addConstraint(Sketcher.Constraint("Perpendicular", 2, 8))
sketch2.addConstraint(Sketcher.Constraint("Perpendicular", 4, 12))
sketch2.addConstraint(Sketcher.Constraint("Perpendicular", 6, 14))
sketch2.addConstraint(Sketcher.Constraint("Perpendicular", 8, 16))
sketch2.addConstraint(Sketcher.Constraint("Perpendicular", 12, 20))
sketch2.addConstraint(Sketcher.Constraint("Perpendicular", 14, 22))
sketch2.addConstraint(Sketcher.Constraint("Perpendicular", 16, 24))
sketch2.addConstraint(Sketcher.Constraint("Perpendicular", 20, 28))
sketch2.addConstraint(Sketcher.Constraint("Perpendicular", 22, 30))
sketch2.addConstraint(Sketcher.Constraint("Perpendicular", 30, 32))
sketch2.addConstraint(Sketcher.Constraint("Perpendicular", 32, 40))
sketch2.addConstraint(Sketcher.Constraint("Perpendicular", 34, 42))
sketch2.addConstraint(Sketcher.Constraint("Perpendicular", 38, 46))
sketch2.addConstraint(Sketcher.Constraint("Perpendicular", 40, 48))
sketch2.addConstraint(Sketcher.Constraint("Perpendicular", 42, 50))
sketch2.addConstraint(Sketcher.Constraint("Perpendicular", 46, 54))
sketch2.addConstraint(Sketcher.Constraint("Perpendicular", 48, 56))
sketch2.addConstraint(Sketcher.Constraint("Perpendicular", 50, 58))
sketch2.addConstraint(Sketcher.Constraint("Perpendicular", 54, 60))
sketch2.addConstraint(Sketcher.Constraint("Horizontal", 31, 3, 33, 3))
sketch2.addConstraint(Sketcher.Constraint("Horizontal", 63, 3, 9, 2))
sketch2.addConstraint(Sketcher.Constraint("Horizontal", 13, 2, 21, 2))
sketch2.addConstraint(Sketcher.Constraint("Horizontal", 14, 2, 22, 2))
sketch2.addConstraint(Sketcher.Constraint("Horizontal", 10, 2, 25, 2))
sketch2.addConstraint(Sketcher.Constraint("Horizontal", 5, 2, 29, 2))
sketch2.addConstraint(Sketcher.Constraint("Horizontal", 29, 2, 32, 2))
sketch2.addConstraint(Sketcher.Constraint("Horizontal", 28, 2, 33, 2))
sketch2.addConstraint(Sketcher.Constraint("Horizontal", 31, 1, 34, 2))
sketch2.addConstraint(Sketcher.Constraint("Horizontal", 26, 2, 36, 2))
sketch2.addConstraint(Sketcher.Constraint("Horizontal", 24, 2, 37, 2))
sketch2.addConstraint(Sketcher.Constraint("Horizontal", 27, 1, 38, 2))
sketch2.addConstraint(Sketcher.Constraint("Horizontal", 21, 2, 40, 2))
sketch2.addConstraint(Sketcher.Constraint("Horizontal", 20, 2, 41, 2))
sketch2.addConstraint(Sketcher.Constraint("Horizontal", 16, 2, 45, 2))
sketch2.addConstraint(Sketcher.Constraint("Horizontal", 40, 2, 48, 2))
sketch2.addConstraint(Sketcher.Constraint("Horizontal", 12, 2, 49, 2))
sketch2.addConstraint(Sketcher.Constraint("Horizontal", 39, 1, 52, 2))
sketch2.addConstraint(Sketcher.Constraint("Horizontal", 8, 2, 53, 2))
sketch2.addConstraint(Sketcher.Constraint("Horizontal", 32, 2, 56, 2))
sketch2.addConstraint(Sketcher.Constraint("Horizontal", 4, 2, 57, 2))
sketch2.addConstraint(Sketcher.Constraint("Horizontal", 1, 1, 60, 2))
sketch2.addConstraint(Sketcher.Constraint("Vertical", 31, 3, 0, 2))
sketch2.addConstraint(Sketcher.Constraint("Vertical", 5, 2, 13, 2))
sketch2.addConstraint(Sketcher.Constraint("Vertical", 3, 2, 17, 2))
sketch2.addConstraint(Sketcher.Constraint("Vertical", 63, 3, 44, 2))
sketch2.addConstraint(Sketcher.Constraint("Vertical", 47, 1, 61, 1))
sketch2.addConstraint(Sketcher.Constraint("Radius", 1, 15.0))
sketch2.addConstraint(Sketcher.Constraint("Radius", 3, 37.5))
sketch2.addConstraint(Sketcher.Constraint("DistanceX", -1, 1, 27, 1, 111.285799))
sketch2.addConstraint(Sketcher.Constraint("DistanceX", -1, 1, 1, 3, 124.488551))
sketch2.addConstraint(Sketcher.Constraint("DistanceX", -1, 1, 2, 2, 142.28731))
sketch2.addConstraint(Sketcher.Constraint("DistanceY", -1, 1, 4, 2, 12.163212))
sketch2.addConstraint(Sketcher.Constraint("DistanceY", -1, 1, 5, 2, 27.925949))
sketch2.addConstraint(Sketcher.Constraint("DistanceY", -1, 1, 7, 1, 5.710952))
sketch2.addConstraint(Sketcher.Constraint("DistanceY", 11, 1, -1, 1, 5.710058))
sketch2.addConstraint(Sketcher.Constraint("DistanceX", -1, 1, 12, 2, 135.242318))
sketch2.addConstraint(Sketcher.Constraint("DistanceY", 13, 2, -1, 1, 25.107059))
sketch2.addConstraint(Sketcher.Constraint("DistanceX", -1, 1, 19, 1, 117.369048))
sketch2.addConstraint(Sketcher.Constraint("DistanceX", -1, 1, 20, 2, 88.563539))
sketch2.addConstraint(Sketcher.Constraint("DistanceX", -1, 1, 24, 2, 91.48167))
sketch2.addConstraint(Sketcher.Constraint("DistanceY", -1, 1, 31, 1, 15.77945))
sketch2.addConstraint(Sketcher.Constraint("DistanceX", -1, 1, 32, 2, 69.343231))
sketch2.setExpression("Constraints[178]", "Params.sketch2_radius")
sketch2.setExpression("Constraints[179]", "Params.sketch2_radius2")
pocket1 = doc.addObject("PartDesign::Pocket", "Pocket")
body.addObject(pocket1)
pocket1.Profile = sketch2
pocket1.setExpression("Length", "Params.pocket1_length")

# Sketch on XY plane
sketch3 = doc.addObject("Sketcher::SketchObject", "Sketch002")
body.addObject(sketch3)
sketch3.AttachmentSupport = (doc.XY_Plane, [""])
sketch3.MapMode = "FlatFace"
sketch3.AttachmentOffset = App.Placement(App.Vector(0, 0, 2), App.Rotation())
add_polygon(sketch3, [(-180, 28), (-180, -31), (-22, -31), (-22, 28)])  # lines 0-3
sketch3.addConstraint(Sketcher.Constraint("Vertical", 0))
sketch3.addConstraint(Sketcher.Constraint("Horizontal", 1))
sketch3.addConstraint(Sketcher.Constraint("Vertical", 2))
sketch3.addConstraint(Sketcher.Constraint("Horizontal", 3))
sketch3.addConstraint(Sketcher.Constraint("DistanceY", 0, 2, 0, 1, 58.126699))
sketch3.addConstraint(Sketcher.Constraint("DistanceX", 1, 1, 1, 2, 158.631483))
sketch3.addConstraint(Sketcher.Constraint("DistanceX", 0, 2, -1, 1, 180.48832))
sketch3.addConstraint(Sketcher.Constraint("DistanceY", 0, 2, -1, 1, 30.605124))
pocket2 = doc.addObject("PartDesign::Pocket", "Pocket001")
body.addObject(pocket2)
pocket2.Profile = sketch3
pocket2.setExpression("Length", "Params.pocket2_length")

doc.recompute()
